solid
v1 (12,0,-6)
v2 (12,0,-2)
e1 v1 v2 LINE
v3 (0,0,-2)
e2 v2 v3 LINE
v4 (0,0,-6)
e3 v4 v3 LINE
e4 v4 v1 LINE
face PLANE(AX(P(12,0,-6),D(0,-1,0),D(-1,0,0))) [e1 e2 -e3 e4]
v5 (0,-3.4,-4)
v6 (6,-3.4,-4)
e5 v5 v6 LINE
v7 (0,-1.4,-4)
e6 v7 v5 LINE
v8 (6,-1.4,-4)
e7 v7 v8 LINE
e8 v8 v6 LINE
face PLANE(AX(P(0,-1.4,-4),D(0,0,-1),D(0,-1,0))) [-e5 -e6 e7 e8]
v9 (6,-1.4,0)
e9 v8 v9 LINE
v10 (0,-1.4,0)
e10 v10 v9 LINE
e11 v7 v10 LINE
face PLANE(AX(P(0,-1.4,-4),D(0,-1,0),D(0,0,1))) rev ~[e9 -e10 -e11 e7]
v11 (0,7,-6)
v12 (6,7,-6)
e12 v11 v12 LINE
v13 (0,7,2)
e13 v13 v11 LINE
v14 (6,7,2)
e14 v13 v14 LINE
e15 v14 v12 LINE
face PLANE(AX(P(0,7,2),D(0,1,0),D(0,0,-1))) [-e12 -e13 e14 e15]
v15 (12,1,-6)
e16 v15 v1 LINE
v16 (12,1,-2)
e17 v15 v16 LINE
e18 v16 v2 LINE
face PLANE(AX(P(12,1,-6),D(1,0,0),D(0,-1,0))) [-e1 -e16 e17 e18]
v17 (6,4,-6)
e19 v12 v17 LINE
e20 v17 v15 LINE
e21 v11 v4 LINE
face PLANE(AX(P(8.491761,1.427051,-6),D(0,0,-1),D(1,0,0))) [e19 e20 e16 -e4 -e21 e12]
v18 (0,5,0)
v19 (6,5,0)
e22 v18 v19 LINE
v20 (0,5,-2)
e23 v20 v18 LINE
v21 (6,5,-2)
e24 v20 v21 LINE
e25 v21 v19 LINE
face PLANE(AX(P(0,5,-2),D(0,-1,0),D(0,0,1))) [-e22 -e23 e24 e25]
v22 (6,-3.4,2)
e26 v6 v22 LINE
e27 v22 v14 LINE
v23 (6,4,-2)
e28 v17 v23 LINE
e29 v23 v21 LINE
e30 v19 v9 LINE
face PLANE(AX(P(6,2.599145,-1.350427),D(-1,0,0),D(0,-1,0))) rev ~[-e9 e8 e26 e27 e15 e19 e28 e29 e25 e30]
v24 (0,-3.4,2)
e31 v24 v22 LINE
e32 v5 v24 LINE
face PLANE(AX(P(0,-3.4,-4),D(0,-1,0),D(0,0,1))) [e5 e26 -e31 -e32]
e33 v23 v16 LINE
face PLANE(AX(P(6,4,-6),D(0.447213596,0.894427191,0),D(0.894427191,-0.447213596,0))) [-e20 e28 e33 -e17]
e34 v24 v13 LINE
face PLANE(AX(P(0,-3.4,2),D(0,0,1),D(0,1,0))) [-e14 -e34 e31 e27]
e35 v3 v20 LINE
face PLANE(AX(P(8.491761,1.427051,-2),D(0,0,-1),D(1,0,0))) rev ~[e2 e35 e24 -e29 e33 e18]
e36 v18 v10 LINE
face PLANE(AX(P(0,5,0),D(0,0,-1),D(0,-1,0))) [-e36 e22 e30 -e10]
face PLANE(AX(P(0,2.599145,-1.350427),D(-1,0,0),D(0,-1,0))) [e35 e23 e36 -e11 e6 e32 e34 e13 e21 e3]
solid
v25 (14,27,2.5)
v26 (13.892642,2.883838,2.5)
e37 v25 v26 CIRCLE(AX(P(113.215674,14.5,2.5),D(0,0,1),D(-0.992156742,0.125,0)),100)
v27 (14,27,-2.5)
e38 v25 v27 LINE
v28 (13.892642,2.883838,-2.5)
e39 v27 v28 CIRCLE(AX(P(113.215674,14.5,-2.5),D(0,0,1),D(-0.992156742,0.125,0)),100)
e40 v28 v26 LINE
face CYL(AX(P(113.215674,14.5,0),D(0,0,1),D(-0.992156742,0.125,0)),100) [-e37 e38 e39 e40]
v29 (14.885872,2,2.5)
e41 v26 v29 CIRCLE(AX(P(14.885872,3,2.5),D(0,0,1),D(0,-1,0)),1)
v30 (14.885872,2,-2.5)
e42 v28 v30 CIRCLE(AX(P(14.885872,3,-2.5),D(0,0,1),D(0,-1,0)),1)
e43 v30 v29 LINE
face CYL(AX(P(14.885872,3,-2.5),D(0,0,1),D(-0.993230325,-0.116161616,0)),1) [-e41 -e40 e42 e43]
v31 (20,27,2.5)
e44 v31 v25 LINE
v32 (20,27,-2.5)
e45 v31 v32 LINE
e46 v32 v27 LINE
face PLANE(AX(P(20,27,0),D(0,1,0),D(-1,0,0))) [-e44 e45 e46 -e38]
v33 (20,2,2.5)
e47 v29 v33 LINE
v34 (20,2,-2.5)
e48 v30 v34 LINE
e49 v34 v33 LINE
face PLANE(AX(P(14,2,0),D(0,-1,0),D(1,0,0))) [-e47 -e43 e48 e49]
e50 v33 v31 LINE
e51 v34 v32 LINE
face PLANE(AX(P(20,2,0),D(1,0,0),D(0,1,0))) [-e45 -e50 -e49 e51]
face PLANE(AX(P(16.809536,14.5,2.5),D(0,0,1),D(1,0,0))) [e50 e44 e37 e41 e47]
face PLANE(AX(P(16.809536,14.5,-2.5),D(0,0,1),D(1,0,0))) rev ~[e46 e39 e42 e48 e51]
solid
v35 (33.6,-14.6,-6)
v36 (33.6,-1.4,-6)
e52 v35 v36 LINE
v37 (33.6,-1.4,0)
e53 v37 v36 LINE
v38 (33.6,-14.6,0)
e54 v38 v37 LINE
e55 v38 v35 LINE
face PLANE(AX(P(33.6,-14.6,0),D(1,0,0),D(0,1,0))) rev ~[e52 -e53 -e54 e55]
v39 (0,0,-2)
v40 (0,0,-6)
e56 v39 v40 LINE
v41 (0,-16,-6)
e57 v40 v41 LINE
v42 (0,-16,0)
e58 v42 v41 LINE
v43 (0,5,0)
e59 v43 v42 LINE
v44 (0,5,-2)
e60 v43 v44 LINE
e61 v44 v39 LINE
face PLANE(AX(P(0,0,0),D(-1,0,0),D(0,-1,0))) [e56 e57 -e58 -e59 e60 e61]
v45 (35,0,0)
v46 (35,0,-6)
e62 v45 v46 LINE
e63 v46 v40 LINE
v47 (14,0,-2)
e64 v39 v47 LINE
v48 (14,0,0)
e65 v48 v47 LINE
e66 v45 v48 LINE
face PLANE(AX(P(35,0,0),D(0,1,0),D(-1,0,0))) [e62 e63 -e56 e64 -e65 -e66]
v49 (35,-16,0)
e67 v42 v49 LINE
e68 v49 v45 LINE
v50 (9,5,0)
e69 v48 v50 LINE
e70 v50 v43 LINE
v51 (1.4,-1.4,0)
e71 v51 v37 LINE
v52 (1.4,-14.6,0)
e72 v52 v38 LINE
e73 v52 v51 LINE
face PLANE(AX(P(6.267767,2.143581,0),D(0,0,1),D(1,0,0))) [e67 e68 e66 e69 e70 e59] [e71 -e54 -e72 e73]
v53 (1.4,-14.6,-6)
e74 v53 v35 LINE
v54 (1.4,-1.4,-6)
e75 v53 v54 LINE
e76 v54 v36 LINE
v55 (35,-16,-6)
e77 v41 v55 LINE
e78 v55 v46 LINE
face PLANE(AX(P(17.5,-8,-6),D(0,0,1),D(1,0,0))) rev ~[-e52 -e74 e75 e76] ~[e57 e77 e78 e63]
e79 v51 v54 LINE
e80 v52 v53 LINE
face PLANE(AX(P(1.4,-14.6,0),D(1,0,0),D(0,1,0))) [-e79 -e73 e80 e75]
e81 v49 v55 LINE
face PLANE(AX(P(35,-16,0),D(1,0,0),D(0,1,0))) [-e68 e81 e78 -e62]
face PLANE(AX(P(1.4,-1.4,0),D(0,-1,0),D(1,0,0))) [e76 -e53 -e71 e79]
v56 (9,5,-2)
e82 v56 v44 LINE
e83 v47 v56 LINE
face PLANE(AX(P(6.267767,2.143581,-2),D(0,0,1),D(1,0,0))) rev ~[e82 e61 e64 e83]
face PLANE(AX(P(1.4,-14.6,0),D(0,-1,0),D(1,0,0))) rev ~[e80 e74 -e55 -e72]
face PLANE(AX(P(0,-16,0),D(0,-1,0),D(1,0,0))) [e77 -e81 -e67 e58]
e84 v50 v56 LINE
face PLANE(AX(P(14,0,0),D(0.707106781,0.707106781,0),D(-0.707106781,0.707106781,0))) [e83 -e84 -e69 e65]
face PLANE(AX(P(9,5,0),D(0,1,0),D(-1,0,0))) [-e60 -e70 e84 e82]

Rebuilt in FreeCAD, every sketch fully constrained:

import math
import FreeCAD as App
import Part
import Sketcher


def edges_at(feature, points):
    """Names of the edges that pass closest to the given points."""
    edges = feature.Shape.Edges
    near = lambda p: min(range(len(edges)), key=lambda i: edges[i].distToShape(Part.Vertex(*p))[0])
    return sorted({f"Edge{near(p) + 1}" for p in points})

doc = App.newDocument("Part")
params = doc.addObject("Spreadsheet::Sheet", "Params")
for row, (alias, value) in enumerate([
    ("sketch1_width", "35 mm"),
    ("sketch1_height", "16 mm"),
    ("sketch1_width2", "32.2 mm"),
    ("sketch1_height2", "13.2 mm"),
    ("pad1_length", "6 mm"),
    ("sketch2_width", "14 mm"),
    ("sketch2_width2", "9 mm"),
    ("sketch2_height", "5 mm"),
    ("pad2_length", "2 mm"),
    ("sketch3_width", "2 mm"),
    ("sketch3_width2", "7 mm"),
    ("sketch3_width3", "5 mm"),
    ("sketch3_height", "4 mm"),
    ("sketch3_height2", "6 mm"),
    ("pad3_length", "6 mm"),
    ("sketch4_width", "6 mm"),
    ("sketch4_height", "4 mm"),
    ("sketch4_height2", "1 mm"),
    ("pad4_length", "4 mm"),
    ("sketch5_radius", "100 mm"),
    ("sketch5_width", "6 mm"),
    ("sketch5_height", "25 mm"),
    ("pad5_length", "5 mm"),
    ("fillet_radius", "1 mm"),
], start=1):
    params.set(f"A{row}", alias)
    params.set(f"B{row}", "=" + value)
    params.setAlias(f"B{row}", alias)

body = doc.addObject("PartDesign::Body", "Body")

sketch1 = doc.addObject("Sketcher::SketchObject", "Sketch")
body.addObject(sketch1)
sketch1.AttachmentSupport = (doc.XY_Plane, [""])
sketch1.MapMode = "FlatFace"
sketch1.addGeometry(Part.LineSegment(App.Vector(35, 0, 0), App.Vector(0, 0, 0)), False)
sketch1.addGeometry(Part.LineSegment(App.Vector(0, 0, 0), App.Vector(0, -16, 0)), False)
sketch1.addGeometry(Part.LineSegment(App.Vector(0, -16, 0), App.Vector(35, -16, 0)), False)
sketch1.addGeometry(Part.LineSegment(App.Vector(35, -16, 0), App.Vector(35, 0, 0)), False)
sketch1.addGeometry(Part.LineSegment(App.Vector(34, -15, 0), App.Vector(1, -15, 0)), False)
sketch1.addGeometry(Part.LineSegment(App.Vector(1, -15, 0), App.Vector(1, -1, 0)), False)
sketch1.addGeometry(Part.LineSegment(App.Vector(1, -1, 0), App.Vector(34, -1, 0)), False)
sketch1.addGeometry(Part.LineSegment(App.Vector(34, -1, 0), App.Vector(34, -15, 0)), False)
sketch1.addConstraint(Sketcher.Constraint("Coincident", 0, 2, 1, 1))
sketch1.addConstraint(Sketcher.Constraint("Coincident", 1, 2, 2, 1))
sketch1.addConstraint(Sketcher.Constraint("Coincident", 2, 2, 3, 1))
sketch1.addConstraint(Sketcher.Constraint("Coincident", 3, 2, 0, 1))
sketch1.addConstraint(Sketcher.Constraint("Coincident", 4, 2, 5, 1))
sketch1.addConstraint(Sketcher.Constraint("Coincident", 5, 2, 6, 1))
sketch1.addConstraint(Sketcher.Constraint("Coincident", 6, 2, 7, 1))
sketch1.addConstraint(Sketcher.Constraint("Coincident", 7, 2, 4, 1))
sketch1.addConstraint(Sketcher.Constraint("Horizontal", 0))
sketch1.addConstraint(Sketcher.Constraint("Vertical", 1))
sketch1.addConstraint(Sketcher.Constraint("Horizontal", 2))
sketch1.addConstraint(Sketcher.Constraint("Vertical", 3))
sketch1.addConstraint(Sketcher.Constraint("Horizontal", 4))
sketch1.addConstraint(Sketcher.Constraint("Vertical", 5))
sketch1.addConstraint(Sketcher.Constraint("Horizontal", 6))
sketch1.addConstraint(Sketcher.Constraint("Vertical", 7))
sketch1.addConstraint(Sketcher.Constraint("Coincident", 0, 2, -1, 1))
sketch1.addConstraint(Sketcher.Constraint("DistanceX", 0, 2, 0, 1, 35.0))
sketch1.addConstraint(Sketcher.Constraint("DistanceY", 1, 2, 1, 1, 16.0))
sketch1.addConstraint(Sketcher.Constraint("DistanceX", 4, 2, 4, 1, 32.2))
sketch1.addConstraint(Sketcher.Constraint("DistanceY", 5, 1, 5, 2, 13.2))
sketch1.addConstraint(Sketcher.Constraint("DistanceX", -1, 1, 4, 2, 1.4))
sketch1.addConstraint(Sketcher.Constraint("DistanceY", 4, 2, -1, 1, 14.6))
sketch1.setExpression("Constraints[17]", "Params.sketch1_width")
sketch1.setExpression("Constraints[18]", "Params.sketch1_height")
sketch1.setExpression("Constraints[19]", "Params.sketch1_width2")
sketch1.setExpression("Constraints[20]", "Params.sketch1_height2")
pad1 = doc.addObject("PartDesign::Pad", "Pad")
body.addObject(pad1)
pad1.Profile = sketch1
pad1.setExpression("Length", "Params.pad1_length")
pad1.Reversed = True

sketch2 = doc.addObject("Sketcher::SketchObject", "Sketch001")
body.addObject(sketch2)
sketch2.AttachmentSupport = (doc.XY_Plane, [""])
sketch2.MapMode = "FlatFace"
sketch2.addGeometry(Part.LineSegment(App.Vector(0, 0, 0), App.Vector(14, 0, 0)), False)
sketch2.addGeometry(Part.LineSegment(App.Vector(14, 0, 0), App.Vector(9, 5, 0)), False)
sketch2.addGeometry(Part.LineSegment(App.Vector(9, 5, 0), App.Vector(0, 5, 0)), False)
sketch2.addGeometry(Part.LineSegment(App.Vector(0, 5, 0), App.Vector(0, 0, 0)), False)
sketch2.addConstraint(Sketcher.Constraint("Coincident", 0, 2, 1, 1))
sketch2.addConstraint(Sketcher.Constraint("Coincident", 1, 2, 2, 1))
sketch2.addConstraint(Sketcher.Constraint("Coincident", 2, 2, 3, 1))
sketch2.addConstraint(Sketcher.Constraint("Coincident", 3, 2, 0, 1))
sketch2.addConstraint(Sketcher.Constraint("Horizontal", 0))
sketch2.addConstraint(Sketcher.Constraint("Horizontal", 2))
sketch2.addConstraint(Sketcher.Constraint("Vertical", 3))
sketch2.addConstraint(Sketcher.Constraint("Coincident", 3, 2, -1, 1))
sketch2.addConstraint(Sketcher.Constraint("DistanceX", 0, 1, 0, 2, 14.0))
sketch2.addConstraint(Sketcher.Constraint("DistanceX", 2, 2, 2, 1, 9.0))
sketch2.addConstraint(Sketcher.Constraint("DistanceY", 3, 2, 3, 1, 5.0))
sketch2.setExpression("Constraints[8]", "Params.sketch2_width")
sketch2.setExpression("Constraints[9]", "Params.sketch2_width2")
sketch2.setExpression("Constraints[10]", "Params.sketch2_height")
pad2 = doc.addObject("PartDesign::Pad", "Pad001")
body.addObject(pad2)
pad2.Profile = sketch2
pad2.setExpression("Length", "Params.pad2_length")
pad2.Reversed = True
body2 = doc.addObject("PartDesign::Body", "Body001")

sketch3 = doc.addObject("Sketcher::SketchObject", "Sketch002")
body2.addObject(sketch3)
sketch3.AttachmentSupport = (doc.getObject("YZ_Plane001"), [""])
sketch3.MapMode = "FlatFace"
sketch3.addGeometry(Part.LineSegment(App.Vector(5, 0, 0), App.Vector(-1.4, 0, 0)), False)
sketch3.addGeometry(Part.LineSegment(App.Vector(-1.4, 0, 0), App.Vector(-1.4, -4, 0)), False)
sketch3.addGeometry(Part.LineSegment(App.Vector(-1.4, -4, 0), App.Vector(-3.4, -4, 0)), False)
sketch3.addGeometry(Part.LineSegment(App.Vector(-3.4, -4, 0), App.Vector(-3.4, 2, 0)), False)
sketch3.addGeometry(Part.LineSegment(App.Vector(-3.4, 2, 0), App.Vector(7, 2, 0)), False)
sketch3.addGeometry(Part.LineSegment(App.Vector(7, 2, 0), App.Vector(7, -6, 0)), False)
sketch3.addGeometry(Part.LineSegment(App.Vector(7, -6, 0), App.Vector(0, -6, 0)), False)
sketch3.addGeometry(Part.LineSegment(App.Vector(0, -6, 0), App.Vector(0, -2, 0)), False)
sketch3.addGeometry(Part.LineSegment(App.Vector(0, -2, 0), App.Vector(5, -2, 0)), False)
sketch3.addGeometry(Part.LineSegment(App.Vector(5, -2, 0), App.Vector(5, 0, 0)), False)
sketch3.addConstraint(Sketcher.Constraint("Coincident", 0, 2, 1, 1))
sketch3.addConstraint(Sketcher.Constraint("Coincident", 1, 2, 2, 1))
sketch3.addConstraint(Sketcher.Constraint("Coincident", 2, 2, 3, 1))
sketch3.addConstraint(Sketcher.Constraint("Coincident", 3, 2, 4, 1))
sketch3.addConstraint(Sketcher.Constraint("Coincident", 4, 2, 5, 1))
sketch3.addConstraint(Sketcher.Constraint("Coincident", 5, 2, 6, 1))
sketch3.addConstraint(Sketcher.Constraint("Coincident", 6, 2, 7, 1))
sketch3.addConstraint(Sketcher.Constraint("Coincident", 7, 2, 8, 1))
sketch3.addConstraint(Sketcher.Constraint("Coincident", 8, 2, 9, 1))
sketch3.addConstraint(Sketcher.Constraint("Coincident", 9, 2, 0, 1))
sketch3.addConstraint(Sketcher.Constraint("Horizontal", 0))
sketch3.addConstraint(Sketcher.Constraint("Vertical", 1))
sketch3.addConstraint(Sketcher.Constraint("Horizontal", 2))
sketch3.addConstraint(Sketcher.Constraint("Vertical", 3))
sketch3.addConstraint(Sketcher.Constraint("Horizontal", 4))
sketch3.addConstraint(Sketcher.Constraint("Vertical", 5))
sketch3.addConstraint(Sketcher.Constraint("Horizontal", 6))
sketch3.addConstraint(Sketcher.Constraint("Vertical", 7))
sketch3.addConstraint(Sketcher.Constraint("Horizontal", 8))
sketch3.addConstraint(Sketcher.Constraint("Vertical", 9))
sketch3.addConstraint(Sketcher.Constraint("PointOnObject", 0, 2, -1))
sketch3.addConstraint(Sketcher.Constraint("PointOnObject", 6, 2, -2))
sketch3.addConstraint(Sketcher.Constraint("Equal", 1, 7))
sketch3.addConstraint(Sketcher.Constraint("Equal", 2, 9))
sketch3.addConstraint(Sketcher.Constraint("DistanceX", 2, 2, 2, 1, 2.0))
sketch3.addConstraint(Sketcher.Constraint("DistanceX", 6, 2, 6, 1, 7.0))
sketch3.addConstraint(Sketcher.Constraint("DistanceX", 8, 1, 8, 2, 5.0))
sketch3.addConstraint(Sketcher.Constraint("DistanceY", 1, 2, 1, 1, 4.0))
sketch3.addConstraint(Sketcher.Constraint("DistanceY", 3, 1, 3, 2, 6.0))
sketch3.addConstraint(Sketcher.Constraint("DistanceX", 0, 2, 0, 1, 6.4))
sketch3.setExpression("Constraints[24]", "Params.sketch3_width")
sketch3.setExpression("Constraints[25]", "Params.sketch3_width2")
sketch3.setExpression("Constraints[26]", "Params.sketch3_width3")
sketch3.setExpression("Constraints[27]", "Params.sketch3_height")
sketch3.setExpression("Constraints[28]", "Params.sketch3_height2")
pad3 = doc.addObject("PartDesign::Pad", "Pad002")
body2.addObject(pad3)
pad3.Profile = sketch3
pad3.setExpression("Length", "Params.pad3_length")

sketch4 = doc.addObject("Sketcher::SketchObject", "Sketch003")
body2.addObject(sketch4)
sketch4.AttachmentSupport = (doc.getObject("XY_Plane001"), [""])
sketch4.MapMode = "FlatFace"
sketch4.AttachmentOffset = App.Placement(App.Vector(0, 0, -6), App.Rotation())
sketch4.addGeometry(Part.LineSegment(App.Vector(12, 0, 0), App.Vector(6, 0, 0)), False)
sketch4.addGeometry(Part.LineSegment(App.Vector(6, 0, 0), App.Vector(6, 4, 0)), False)
sketch4.addGeometry(Part.LineSegment(App.Vector(6, 4, 0), App.Vector(12, 1, 0)), False)
sketch4.addGeometry(Part.LineSegment(App.Vector(12, 1, 0), App.Vector(12, 0, 0)), False)
sketch4.addConstraint(Sketcher.Constraint("Coincident", 0, 2, 1, 1))
sketch4.addConstraint(Sketcher.Constraint("Coincident", 1, 2, 2, 1))
sketch4.addConstraint(Sketcher.Constraint("Coincident", 2, 2, 3, 1))
sketch4.addConstraint(Sketcher.Constraint("Coincident", 3, 2, 0, 1))
sketch4.addConstraint(Sketcher.Constraint("Horizontal", 0))
sketch4.addConstraint(Sketcher.Constraint("Vertical", 1))
sketch4.addConstraint(Sketcher.Constraint("Vertical", 3))
sketch4.addConstraint(Sketcher.Constraint("PointOnObject", 0, 2, -1))
sketch4.addConstraint(Sketcher.Constraint("DistanceX", 0, 2, 0, 1, 6.0))
sketch4.addConstraint(Sketcher.Constraint("DistanceY", 1, 1, 1, 2, 4.0))
sketch4.addConstraint(Sketcher.Constraint("DistanceY", 3, 2, 3, 1, 1.0))
sketch4.addConstraint(Sketcher.Constraint("DistanceX", -1, 1, 0, 2, 6.0))
sketch4.setExpression("Constraints[8]", "Params.sketch4_width")
sketch4.setExpression("Constraints[9]", "Params.sketch4_height")
sketch4.setExpression("Constraints[10]", "Params.sketch4_height2")
pad4 = doc.addObject("PartDesign::Pad", "Pad003")
body2.addObject(pad4)
pad4.Profile = sketch4
pad4.setExpression("Length", "Params.pad4_length")
body3 = doc.addObject("PartDesign::Body", "Body002")

sketch5 = doc.addObject("Sketcher::SketchObject", "Sketch004")
body3.addObject(sketch5)
sketch5.AttachmentSupport = (doc.getObject("XY_Plane002"), [""])
sketch5.MapMode = "FlatFace"
sketch5.addGeometry(Part.ArcOfCircle(Part.Circle(App.Vector(113, 14, 0), App.Vector(0, 0, 1), 100), math.radians(172.82), math.radians(187.18)), False)
sketch5.addGeometry(Part.LineSegment(App.Vector(14, 2, 0), App.Vector(20, 2, 0)), False)
sketch5.addGeometry(Part.LineSegment(App.Vector(20, 2, 0), App.Vector(20, 27, 0)), False)
sketch5.addGeometry(Part.LineSegment(App.Vector(20, 27, 0), App.Vector(14, 27, 0)), False)
sketch5.addConstraint(Sketcher.Constraint("Coincident", 0, 2, 1, 1))
sketch5.addConstraint(Sketcher.Constraint("Coincident", 1, 2, 2, 1))
sketch5.addConstraint(Sketcher.Constraint("Coincident", 2, 2, 3, 1))
sketch5.addConstraint(Sketcher.Constraint("Coincident", 3, 2, 0, 1))
sketch5.addConstraint(Sketcher.Constraint("Horizontal", 1))
sketch5.addConstraint(Sketcher.Constraint("Vertical", 2))
sketch5.addConstraint(Sketcher.Constraint("Horizontal", 3))
sketch5.addConstraint(Sketcher.Constraint("Vertical", 0, 2, 3, 2))
sketch5.addConstraint(Sketcher.Constraint("Radius", 0, 100.0))
sketch5.addConstraint(Sketcher.Constraint("DistanceX", 1, 1, 1, 2, 6.0))
sketch5.addConstraint(Sketcher.Constraint("DistanceY", 2, 1, 2, 2, 25.0))
sketch5.addConstraint(Sketcher.Constraint("DistanceX", -1, 1, 0, 2, 14.0))
sketch5.addConstraint(Sketcher.Constraint("DistanceY", -1, 1, 0, 2, 2.0))
sketch5.setExpression("Constraints[8]", "Params.sketch5_radius")
sketch5.setExpression("Constraints[9]", "Params.sketch5_width")
sketch5.setExpression("Constraints[10]", "Params.sketch5_height")
pad5 = doc.addObject("PartDesign::Pad", "Pad004")
body3.addObject(pad5)
pad5.Profile = sketch5
pad5.setExpression("Length", "Params.pad5_length")
pad5.Midplane = True
doc.recompute()

fillet = doc.addObject("PartDesign::Fillet", "Fillet")
body3.addObject(fillet)
fillet.Base = (pad5, edges_at(pad5, [(14, 2, 0)]))
fillet.setExpression("Radius", "Params.fillet_radius")

doc.recompute()
